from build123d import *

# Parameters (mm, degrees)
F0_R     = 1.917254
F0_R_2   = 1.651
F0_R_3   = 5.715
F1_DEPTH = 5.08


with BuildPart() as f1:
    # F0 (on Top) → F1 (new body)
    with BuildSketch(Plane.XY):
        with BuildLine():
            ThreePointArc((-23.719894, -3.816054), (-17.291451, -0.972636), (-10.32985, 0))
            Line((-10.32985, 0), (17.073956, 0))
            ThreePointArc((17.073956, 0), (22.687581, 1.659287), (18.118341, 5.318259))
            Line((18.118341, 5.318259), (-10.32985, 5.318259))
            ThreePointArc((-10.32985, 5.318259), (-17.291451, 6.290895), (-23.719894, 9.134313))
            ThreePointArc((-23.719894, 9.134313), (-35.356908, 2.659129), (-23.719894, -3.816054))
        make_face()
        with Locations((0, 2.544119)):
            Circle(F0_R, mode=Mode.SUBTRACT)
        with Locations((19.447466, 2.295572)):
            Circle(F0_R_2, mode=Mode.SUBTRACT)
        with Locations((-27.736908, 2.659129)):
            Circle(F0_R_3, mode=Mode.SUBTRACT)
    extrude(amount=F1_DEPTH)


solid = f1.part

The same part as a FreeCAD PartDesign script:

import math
import FreeCAD as App
import Part
import Sketcher
from FreeCAD import Vector
Q = App.Units.Quantity

doc = App.newDocument("Part")
body = doc.addObject("PartDesign::Body", "Body")

# Sketch on XY plane
sketch1 = body.newObject("Sketcher::SketchObject", "Sketch")
sketch1.AttachmentSupport = (doc.getObject("XY_Plane"), [""])
sketch1.MapMode = "FlatFace"
sketch1.addGeometry(Part.ArcOfCircle(Part.Circle(Vector(-10.32985, -25.400001, 0), Vector(0, 0, 1), 25.400001), math.radians(90), math.radians(121.814245)), False)
sketch1.addGeometry(Part.LineSegment(Vector(-10.32985, 0, 0), Vector(17.073956, 0, 0)), False)
sketch1.addGeometry(Part.ArcOfCircle(Part.Circle(Vector(19.447466, 2.295573, 0), Vector(0, 0, 1), 3.302), math.radians(-135.956302), math.radians(113.735885)), False)
sketch1.addGeometry(Part.LineSegment(Vector(18.118341, 5.318259, 0), Vector(-10.32985, 5.318259, 0)), False)
sketch1.addGeometry(Part.ArcOfCircle(Part.Circle(Vector(-10.32985, 30.71826, 0), Vector(0, 0, 1), 25.400001), math.radians(-121.814245), math.radians(-90)), False)
sketch1.addGeometry(Part.ArcOfCircle(Part.Circle(Vector(-27.736908, 2.65913, 0), Vector(0, 0, 1), 7.62), math.radians(58.185749), math.radians(301.814251)), False)
sketch1.addGeometry(Part.Circle(Vector(0, 2.544119, 0), Vector(0, 0, 1), 1.917254), False)
sketch1.addGeometry(Part.Circle(Vector(19.447466, 2.295572, 0), Vector(0, 0, 1), 1.651), False)
sketch1.addGeometry(Part.Circle(Vector(-27.736908, 2.659129, 0), Vector(0, 0, 1), 5.715), False)
sketch1.addConstraint(Sketcher.Constraint("Tangent", 0, 1, 1, 1))
sketch1.addConstraint(Sketcher.Constraint("Coincident", 1, 2, 2, 1))
sketch1.addConstraint(Sketcher.Constraint("Coincident", 2, 2, 3, 1))
sketch1.addConstraint(Sketcher.Constraint("Tangent", 3, 2, 4, 2))
sketch1.addConstraint(Sketcher.Constraint("Tangent", 4, 1, 5, 1))
sketch1.addConstraint(Sketcher.Constraint("Tangent", 5, 2, 0, 2))
sketch1.addConstraint(Sketcher.Constraint("Horizontal", 1))
sketch1.addConstraint(Sketcher.Constraint("Horizontal", 3))
sketch1.addConstraint(Sketcher.Constraint("Coincident", 7, 3, 2, 3))
sketch1.addConstraint(Sketcher.Constraint("Coincident", 8, 3, 5, 3))
sketch1.addConstraint(Sketcher.Constraint("Equal", 0, 4))
sketch1.addConstraint(Sketcher.Constraint("PointOnObject", 6, 3, -2))
sketch1.addConstraint(Sketcher.Constraint("PointOnObject", 0, 1, -1))
sketch1.addConstraint(Sketcher.Constraint("Vertical", 0, 3, 4, 3))
sketch1.addConstraint(Sketcher.Constraint("Radius", 0, Q("1 in")))
sketch1.addConstraint(Sketcher.Constraint("Radius", 5, Q("0.3 in")))
sketch1.addConstraint(Sketcher.Constraint("Diameter", 7, Q("0.13 in")))
sketch1.addConstraint(Sketcher.Constraint("Diameter", 8, Q("0.45 in")))
sketch1.addConstraint(Sketcher.Constraint("Radius", 2, Q("0.13 in")))
sketch1.addConstraint(Sketcher.Constraint("Diameter", 6, Q("3.834508 mm")))
sketch1.addConstraint(Sketcher.Constraint("DistanceX", 3, 2, 3, 1, Q("28.448191 mm")))
sketch1.addConstraint(Sketcher.Constraint("DistanceX", 1, 1, 1, 2, Q("27.403806 mm")))
sketch1.addConstraint(Sketcher.Constraint("DistanceX", 0, 3, -1, 1, Q("10.32985 mm")))
sketch1.addConstraint(Sketcher.Constraint("DistanceY", -1, 1, 4, 3, Q("30.71826 mm")))
sketch1.addConstraint(Sketcher.Constraint("DistanceY", -1, 1, 6, 3, Q("2.544119 mm")))
pad1 = body.newObject("PartDesign::Pad", "Pad")
pad1.Profile = sketch1
pad1.Length = Q("0.2 in")

doc.recompute()
